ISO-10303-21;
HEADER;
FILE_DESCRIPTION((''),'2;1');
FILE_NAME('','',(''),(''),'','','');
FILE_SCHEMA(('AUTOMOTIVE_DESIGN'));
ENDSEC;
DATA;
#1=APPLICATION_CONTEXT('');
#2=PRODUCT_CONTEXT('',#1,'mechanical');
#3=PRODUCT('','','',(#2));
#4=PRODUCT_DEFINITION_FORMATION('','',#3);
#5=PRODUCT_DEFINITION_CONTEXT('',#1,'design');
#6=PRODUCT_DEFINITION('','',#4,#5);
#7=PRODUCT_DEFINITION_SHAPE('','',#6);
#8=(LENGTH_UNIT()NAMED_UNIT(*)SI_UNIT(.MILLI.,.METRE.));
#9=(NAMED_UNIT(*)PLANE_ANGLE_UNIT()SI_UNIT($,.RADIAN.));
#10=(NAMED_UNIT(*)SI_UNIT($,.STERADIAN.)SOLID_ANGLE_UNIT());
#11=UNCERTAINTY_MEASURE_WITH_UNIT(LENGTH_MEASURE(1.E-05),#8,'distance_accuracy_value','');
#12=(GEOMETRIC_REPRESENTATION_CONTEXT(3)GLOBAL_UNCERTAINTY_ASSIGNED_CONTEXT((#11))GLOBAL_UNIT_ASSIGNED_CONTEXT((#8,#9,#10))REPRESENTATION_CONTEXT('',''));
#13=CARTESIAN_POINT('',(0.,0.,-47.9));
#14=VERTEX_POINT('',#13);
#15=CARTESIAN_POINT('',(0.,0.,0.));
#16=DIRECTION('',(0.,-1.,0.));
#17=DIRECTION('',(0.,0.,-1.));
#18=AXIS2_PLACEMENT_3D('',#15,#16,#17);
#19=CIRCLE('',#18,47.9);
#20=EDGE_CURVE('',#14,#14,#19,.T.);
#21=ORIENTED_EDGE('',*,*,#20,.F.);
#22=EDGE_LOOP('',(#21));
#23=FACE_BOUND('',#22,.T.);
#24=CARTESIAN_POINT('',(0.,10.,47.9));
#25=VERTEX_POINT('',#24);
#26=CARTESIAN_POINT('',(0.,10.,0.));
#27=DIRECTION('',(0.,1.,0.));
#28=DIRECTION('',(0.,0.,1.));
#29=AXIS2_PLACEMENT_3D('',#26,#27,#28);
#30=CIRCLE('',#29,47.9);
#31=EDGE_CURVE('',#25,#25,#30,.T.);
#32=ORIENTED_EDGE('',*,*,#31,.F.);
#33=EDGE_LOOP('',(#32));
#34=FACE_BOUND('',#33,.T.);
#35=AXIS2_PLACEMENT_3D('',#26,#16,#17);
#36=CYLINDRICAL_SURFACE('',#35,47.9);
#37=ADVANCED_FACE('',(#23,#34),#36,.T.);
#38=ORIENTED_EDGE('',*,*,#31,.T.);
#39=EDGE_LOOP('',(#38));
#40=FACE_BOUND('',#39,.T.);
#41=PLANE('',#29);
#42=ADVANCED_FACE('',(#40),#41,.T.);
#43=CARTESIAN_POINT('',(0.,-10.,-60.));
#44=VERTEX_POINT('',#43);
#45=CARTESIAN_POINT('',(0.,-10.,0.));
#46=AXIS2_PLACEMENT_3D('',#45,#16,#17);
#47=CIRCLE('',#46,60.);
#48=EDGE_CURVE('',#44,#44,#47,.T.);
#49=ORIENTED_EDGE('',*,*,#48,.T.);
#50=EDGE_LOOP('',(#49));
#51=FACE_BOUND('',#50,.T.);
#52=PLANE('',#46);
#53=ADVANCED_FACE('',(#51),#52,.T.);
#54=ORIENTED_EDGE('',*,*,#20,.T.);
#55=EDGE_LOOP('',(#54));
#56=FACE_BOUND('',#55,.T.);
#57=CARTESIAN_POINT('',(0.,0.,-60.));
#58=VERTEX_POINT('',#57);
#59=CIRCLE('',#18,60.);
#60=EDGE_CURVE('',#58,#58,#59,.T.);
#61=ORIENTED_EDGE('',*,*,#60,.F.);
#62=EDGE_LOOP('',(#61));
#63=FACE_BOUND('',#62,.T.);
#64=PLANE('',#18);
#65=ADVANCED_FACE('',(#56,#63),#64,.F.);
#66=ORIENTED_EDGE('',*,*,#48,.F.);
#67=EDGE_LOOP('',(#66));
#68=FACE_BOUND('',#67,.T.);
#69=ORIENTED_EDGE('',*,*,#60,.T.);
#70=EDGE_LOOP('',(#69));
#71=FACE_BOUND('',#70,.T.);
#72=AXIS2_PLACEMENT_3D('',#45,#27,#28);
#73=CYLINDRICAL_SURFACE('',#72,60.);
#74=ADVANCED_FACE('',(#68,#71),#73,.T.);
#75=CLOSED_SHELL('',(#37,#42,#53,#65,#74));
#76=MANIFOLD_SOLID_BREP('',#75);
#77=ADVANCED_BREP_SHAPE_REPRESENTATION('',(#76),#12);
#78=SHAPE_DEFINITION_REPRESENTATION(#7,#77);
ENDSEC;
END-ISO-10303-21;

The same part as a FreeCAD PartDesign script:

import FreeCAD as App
import Part
import Sketcher

V = App.Vector

doc = App.newDocument("Part")
body = doc.addObject("PartDesign::Body", "Body")

# Sketch on XZ plane
sketch1 = body.newObject("Sketcher::SketchObject", "Sketch")
sketch1.AttachmentSupport = (doc.getObject("XZ_Plane"), [""])
sketch1.MapMode = "FlatFace"
sketch1.addGeometry(Part.Circle(V(0, 0, 0), V(0, 0, 1), 48), False)
sketch1.addConstraint(Sketcher.Constraint("Coincident", 0, 3, -1, 1))
sketch1.addConstraint(Sketcher.Constraint("Diameter", 0, 95.8))
pad1 = body.newObject("PartDesign::Pad", "Pad")
pad1.Profile = sketch1
pad1.Length = 10
pad1.Reversed = True

# Sketch on XZ plane
sketch2 = body.newObject("Sketcher::SketchObject", "Sketch001")
sketch2.AttachmentSupport = (doc.getObject("XZ_Plane"), [""])
sketch2.MapMode = "FlatFace"
sketch2.addGeometry(Part.Circle(V(0, 0, 0), V(0, 0, 1), 60), False)
sketch2.addConstraint(Sketcher.Constraint("Coincident", 0, 3, -1, 1))
sketch2.addConstraint(Sketcher.Constraint("Diameter", 0, 120.0))
pad2 = body.newObject("PartDesign::Pad", "Pad001")
pad2.Profile = sketch2
pad2.Length = 10

doc.recompute()
